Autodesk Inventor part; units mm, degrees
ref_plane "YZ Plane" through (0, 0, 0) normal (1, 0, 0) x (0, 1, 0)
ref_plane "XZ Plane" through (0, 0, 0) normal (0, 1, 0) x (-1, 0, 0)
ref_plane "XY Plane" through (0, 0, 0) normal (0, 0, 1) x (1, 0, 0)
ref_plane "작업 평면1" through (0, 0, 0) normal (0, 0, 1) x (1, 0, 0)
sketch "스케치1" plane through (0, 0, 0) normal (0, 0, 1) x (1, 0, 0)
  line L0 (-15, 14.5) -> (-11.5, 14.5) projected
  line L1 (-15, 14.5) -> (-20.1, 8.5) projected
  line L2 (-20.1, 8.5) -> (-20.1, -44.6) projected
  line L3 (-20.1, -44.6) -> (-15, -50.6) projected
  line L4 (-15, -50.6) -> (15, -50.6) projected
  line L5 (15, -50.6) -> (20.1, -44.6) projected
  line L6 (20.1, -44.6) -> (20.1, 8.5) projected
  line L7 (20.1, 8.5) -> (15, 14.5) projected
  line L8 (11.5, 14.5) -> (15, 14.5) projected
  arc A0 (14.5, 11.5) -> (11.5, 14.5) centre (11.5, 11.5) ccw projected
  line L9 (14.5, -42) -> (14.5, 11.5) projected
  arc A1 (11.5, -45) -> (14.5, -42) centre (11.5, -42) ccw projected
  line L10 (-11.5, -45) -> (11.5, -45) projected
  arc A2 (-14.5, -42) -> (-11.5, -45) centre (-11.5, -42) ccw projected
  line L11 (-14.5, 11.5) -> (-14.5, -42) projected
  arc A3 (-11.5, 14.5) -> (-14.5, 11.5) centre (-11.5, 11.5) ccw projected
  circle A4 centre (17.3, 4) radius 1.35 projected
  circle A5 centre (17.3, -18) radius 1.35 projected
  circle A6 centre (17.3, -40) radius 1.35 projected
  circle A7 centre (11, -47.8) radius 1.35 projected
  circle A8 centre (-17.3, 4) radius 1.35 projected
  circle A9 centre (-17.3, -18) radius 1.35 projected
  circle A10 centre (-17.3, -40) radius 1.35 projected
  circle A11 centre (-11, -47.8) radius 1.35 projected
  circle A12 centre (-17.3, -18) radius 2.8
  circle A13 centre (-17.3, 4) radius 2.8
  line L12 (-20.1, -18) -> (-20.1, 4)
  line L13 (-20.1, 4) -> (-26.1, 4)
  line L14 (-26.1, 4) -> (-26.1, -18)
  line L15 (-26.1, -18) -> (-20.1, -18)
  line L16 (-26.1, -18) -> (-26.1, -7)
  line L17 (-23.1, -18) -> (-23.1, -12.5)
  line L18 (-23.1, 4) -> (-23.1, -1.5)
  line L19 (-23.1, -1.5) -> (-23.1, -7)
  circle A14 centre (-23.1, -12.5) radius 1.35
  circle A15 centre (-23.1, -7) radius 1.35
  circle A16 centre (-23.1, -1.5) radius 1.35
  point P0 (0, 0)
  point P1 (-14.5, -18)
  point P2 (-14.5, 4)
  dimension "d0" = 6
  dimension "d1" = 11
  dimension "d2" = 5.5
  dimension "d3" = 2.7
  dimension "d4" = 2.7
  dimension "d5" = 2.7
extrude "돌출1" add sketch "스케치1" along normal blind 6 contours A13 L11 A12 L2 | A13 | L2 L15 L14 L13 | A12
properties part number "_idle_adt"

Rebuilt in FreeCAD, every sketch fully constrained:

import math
import FreeCAD as App
import Part
import Sketcher
from FreeCAD import Vector

doc = App.newDocument("Part")
body = doc.addObject("PartDesign::Body", "Body")

# Sketch on XY plane
sketch1 = body.newObject("Sketcher::SketchObject", "Sketch")
sketch1.AttachmentSupport = (doc.getObject("XY_Plane"), [""])
sketch1.MapMode = "FlatFace"
sketch1.addGeometry(Part.LineSegment(Vector(-14.5, -18, 0), Vector(-14.5, 4, 0)), False)
sketch1.addGeometry(Part.ArcOfCircle(Part.Circle(Vector(-17.3, 4, 0), Vector(0, 0, 1), 2.8), math.radians(0), math.radians(180)), False)
sketch1.addGeometry(Part.LineSegment(Vector(-20.1, 4, 0), Vector(-23.1, 4, 0)), False)
sketch1.addGeometry(Part.LineSegment(Vector(-23.1, 4, 0), Vector(-26.1, 4, 0)), False)
sketch1.addGeometry(Part.LineSegment(Vector(-26.1, 4, 0), Vector(-26.1, -18, 0)), False)
sketch1.addGeometry(Part.LineSegment(Vector(-26.1, -18, 0), Vector(-23.1, -18, 0)), False)
sketch1.addGeometry(Part.LineSegment(Vector(-23.1, -18, 0), Vector(-20.1, -18, 0)), False)
sketch1.addGeometry(Part.ArcOfCircle(Part.Circle(Vector(-17.3, -18, 0), Vector(0, 0, 1), 2.8), math.radians(180), math.radians(360)), False)
sketch1.addGeometry(Part.Circle(Vector(-17.3, 4, 0), Vector(0, 0, 1), 1.4), False)
sketch1.addGeometry(Part.Circle(Vector(-17.3, -18, 0), Vector(0, 0, 1), 1.4), False)
sketch1.addGeometry(Part.Circle(Vector(-23.1, -12.5, 0), Vector(0, 0, 1), 1.4), False)
sketch1.addGeometry(Part.Circle(Vector(-23.1, -7, 0), Vector(0, 0, 1), 1.4), False)
sketch1.addGeometry(Part.ArcOfCircle(Part.Circle(Vector(-23.1, -1.5, 0), Vector(0, 0, 1), 1.4), math.radians(90), math.radians(270)), False)
sketch1.addGeometry(Part.ArcOfCircle(Part.Circle(Vector(-23.1, -1.5, 0), Vector(0, 0, 1), 1.4), math.radians(-90), math.radians(90)), False)
sketch1.addConstraint(Sketcher.Constraint("Tangent", 0, 2, 1, 1))
sketch1.addConstraint(Sketcher.Constraint("Coincident", 1, 2, 2, 1))
sketch1.addConstraint(Sketcher.Constraint("Coincident", 2, 2, 3, 1))
sketch1.addConstraint(Sketcher.Constraint("Coincident", 3, 2, 4, 1))
sketch1.addConstraint(Sketcher.Constraint("Coincident", 4, 2, 5, 1))
sketch1.addConstraint(Sketcher.Constraint("Coincident", 5, 2, 6, 1))
sketch1.addConstraint(Sketcher.Constraint("Coincident", 6, 2, 7, 1))
sketch1.addConstraint(Sketcher.Constraint("Tangent", 7, 2, 0, 1))
sketch1.addConstraint(Sketcher.Constraint("Tangent", 12, 1, 13, 2))
sketch1.addConstraint(Sketcher.Constraint("Coincident", 13, 1, 12, 2))
sketch1.addConstraint(Sketcher.Constraint("Vertical", 0))
sketch1.addConstraint(Sketcher.Constraint("Horizontal", 2))
sketch1.addConstraint(Sketcher.Constraint("Horizontal", 3))
sketch1.addConstraint(Sketcher.Constraint("Vertical", 4))
sketch1.addConstraint(Sketcher.Constraint("Horizontal", 5))
sketch1.addConstraint(Sketcher.Constraint("Horizontal", 6))
sketch1.addConstraint(Sketcher.Constraint("Coincident", 8, 3, 1, 3))
sketch1.addConstraint(Sketcher.Constraint("Coincident", 9, 3, 7, 3))
sketch1.addConstraint(Sketcher.Constraint("Equal", 1, 7))
sketch1.addConstraint(Sketcher.Constraint("Equal", 8, 9))
sketch1.addConstraint(Sketcher.Constraint("Equal", 9, 10))
sketch1.addConstraint(Sketcher.Constraint("Equal", 10, 11))
sketch1.addConstraint(Sketcher.Constraint("Equal", 11, 12))
sketch1.addConstraint(Sketcher.Constraint("Horizontal", 0, 2, 1, 2))
sketch1.addConstraint(Sketcher.Constraint("Horizontal", 9, 3, 4, 2))
sketch1.addConstraint(Sketcher.Constraint("Vertical", 10, 3, 11, 3))
sketch1.addConstraint(Sketcher.Constraint("Vertical", 11, 3, 12, 3))
sketch1.addConstraint(Sketcher.Constraint("Vertical", 13, 3, 2, 2))
sketch1.addConstraint(Sketcher.Constraint("Vertical", 2, 2, 5, 2))
sketch1.addConstraint(Sketcher.Constraint("Vertical", 5, 2, 12, 1))
sketch1.addConstraint(Sketcher.Constraint("Vertical", 12, 1, 13, 1))
sketch1.addConstraint(Sketcher.Constraint("Equal", 2, 3))
sketch1.addConstraint(Sketcher.Constraint("Diameter", 8, 2.7))
sketch1.addConstraint(Sketcher.Constraint("DistanceY", 11, 3, 1, 3, 11.0))
sketch1.addConstraint(Sketcher.Constraint("DistanceY", 7, 3, 11, 3, 11.0))
sketch1.addConstraint(Sketcher.Constraint("DistanceY", 10, 3, 12, 3, 11.0))
sketch1.addConstraint(Sketcher.Constraint("DistanceX", 3, 2, 1, 2, 6.0))
sketch1.addConstraint(Sketcher.Constraint("Radius", 1, 2.8))
sketch1.addConstraint(Sketcher.Constraint("DistanceY", 7, 3, 10, 3, 5.5))
sketch1.addConstraint(Sketcher.Constraint("DistanceY", -1, 1, 1, 3, 4.0))
sketch1.addConstraint(Sketcher.Constraint("DistanceX", 1, 3, -1, 1, 17.3))
pad1 = body.newObject("PartDesign::Pad", "Pad")
pad1.Profile = sketch1
pad1.Length = 6

doc.recompute()
